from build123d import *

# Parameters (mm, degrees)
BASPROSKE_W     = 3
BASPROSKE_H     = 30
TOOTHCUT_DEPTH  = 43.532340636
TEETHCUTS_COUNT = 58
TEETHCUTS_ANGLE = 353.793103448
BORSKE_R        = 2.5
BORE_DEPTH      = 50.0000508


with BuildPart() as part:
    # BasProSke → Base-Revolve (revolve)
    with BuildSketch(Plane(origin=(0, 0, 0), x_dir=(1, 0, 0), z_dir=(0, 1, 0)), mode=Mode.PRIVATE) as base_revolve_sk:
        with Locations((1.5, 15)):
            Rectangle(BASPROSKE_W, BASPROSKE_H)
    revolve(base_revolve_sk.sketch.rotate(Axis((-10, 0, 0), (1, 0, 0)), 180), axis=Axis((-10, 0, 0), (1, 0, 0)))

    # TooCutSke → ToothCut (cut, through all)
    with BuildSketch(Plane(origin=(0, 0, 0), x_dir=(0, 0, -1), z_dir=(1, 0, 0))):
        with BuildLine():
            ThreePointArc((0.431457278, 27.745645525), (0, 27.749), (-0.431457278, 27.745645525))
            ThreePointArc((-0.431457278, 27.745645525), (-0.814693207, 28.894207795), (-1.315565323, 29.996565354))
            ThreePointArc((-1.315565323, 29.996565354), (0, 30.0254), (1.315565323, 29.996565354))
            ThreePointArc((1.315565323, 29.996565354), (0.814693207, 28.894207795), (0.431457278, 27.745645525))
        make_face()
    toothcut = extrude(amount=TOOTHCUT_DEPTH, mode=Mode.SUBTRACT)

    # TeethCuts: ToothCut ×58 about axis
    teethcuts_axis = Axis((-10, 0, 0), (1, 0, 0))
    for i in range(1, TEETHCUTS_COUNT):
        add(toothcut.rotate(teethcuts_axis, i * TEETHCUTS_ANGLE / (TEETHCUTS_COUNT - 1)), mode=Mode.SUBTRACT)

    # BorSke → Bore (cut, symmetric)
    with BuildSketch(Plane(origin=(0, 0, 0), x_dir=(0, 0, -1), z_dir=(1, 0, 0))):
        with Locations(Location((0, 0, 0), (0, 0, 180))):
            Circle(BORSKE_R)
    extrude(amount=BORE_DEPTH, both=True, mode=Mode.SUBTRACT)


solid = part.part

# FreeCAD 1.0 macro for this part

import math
import FreeCAD as App
import Part
import Sketcher
from FreeCAD import Vector
Q = App.Units.Quantity


def add_polygon(sketch, points):
    """Adds a closed chain of lines whose ends are joined by coincident constraints."""
    first, n = sketch.GeometryCount, len(points)
    for a, b in zip(points, points[1:] + points[:1]):
        sketch.addGeometry(Part.LineSegment(App.Vector(*a, 0), App.Vector(*b, 0)), False)
    for i in range(n):
        sketch.addConstraint(Sketcher.Constraint("Coincident", first + i, 2, first + (i + 1) % n, 1))

doc = App.newDocument("Part")
body = doc.addObject("PartDesign::Body", "Body")

# Sketch on XZ plane
sketch1 = doc.addObject("Sketcher::SketchObject", "Sketch")
body.addObject(sketch1)
sketch1.AttachmentSupport = (doc.XZ_Plane, [""])
sketch1.MapMode = "FlatFace"
add_polygon(sketch1, [(0, -30), (0, 0), (3, 0), (3, -30)])  # lines 0-3
sketch1.addConstraint(Sketcher.Constraint("Vertical", 0))
sketch1.addConstraint(Sketcher.Constraint("Horizontal", 1))
sketch1.addConstraint(Sketcher.Constraint("Vertical", 2))
sketch1.addConstraint(Sketcher.Constraint("Horizontal", 3))
sketch1.addConstraint(Sketcher.Constraint("Coincident", 0, 2, -1, 1))
sketch1.addConstraint(Sketcher.Constraint("DistanceX", 1, 1, 1, 2, Q("3 mm")))
sketch1.addConstraint(Sketcher.Constraint("DistanceY", 0, 1, 0, 2, Q("30 mm")))
revolution = doc.addObject("PartDesign::Revolution", "Revolution")
body.addObject(revolution)
revolution.Profile = sketch1
revolution.ReferenceAxis = (sketch1, ["H_Axis"])
revolution.Angle = 360

# Sketch on YZ plane
sketch2 = doc.addObject("Sketcher::SketchObject", "Sketch001")
body.addObject(sketch2)
sketch2.AttachmentSupport = (doc.YZ_Plane, [""])
sketch2.MapMode = "FlatFace"
sketch2.addGeometry(Part.ArcOfCircle(Part.Circle(Vector(0, 0, 0), Vector(0, 0, 1), 27.7), math.radians(-0.89), math.radians(0.89)), False)
sketch2.addGeometry(Part.ArcOfCircle(Part.Circle(Vector(24.7, -11.6, 0), Vector(0, 0, 1), 11.6), math.radians(62.57), math.radians(74.54)), False)
sketch2.addGeometry(Part.ArcOfCircle(Part.Circle(Vector(0, 0, 0), Vector(0, 0, 1), 30), math.radians(-2.51), math.radians(2.51)), False)
sketch2.addGeometry(Part.ArcOfCircle(Part.Circle(Vector(24.7, 11.6, 0), Vector(0, 0, 1), 11.6), math.radians(-74.54), math.radians(-62.57)), False)
sketch2.addConstraint(Sketcher.Constraint("Coincident", 0, 1, 1, 2))
sketch2.addConstraint(Sketcher.Constraint("Coincident", 1, 1, 2, 1))
sketch2.addConstraint(Sketcher.Constraint("Coincident", 2, 2, 3, 2))
sketch2.addConstraint(Sketcher.Constraint("Coincident", 3, 1, 0, 2))
sketch2.addConstraint(Sketcher.Constraint("Coincident", 0, 3, -1, 1))
sketch2.addConstraint(Sketcher.Constraint("Coincident", 2, 3, -1, 1))
sketch2.addConstraint(Sketcher.Constraint("Equal", 1, 3))
sketch2.addConstraint(Sketcher.Constraint("Symmetric", 1, 3, 3, 3, -1))
sketch2.addConstraint(Sketcher.Constraint("Radius", 1, Q("11.6 mm")))
sketch2.addConstraint(Sketcher.Constraint("Radius", 2, Q("30.0254 mm")))
sketch2.addConstraint(Sketcher.Constraint("Radius", 0, Q("27.748997 mm")))
sketch2.addConstraint(Sketcher.Constraint("DistanceX", 1, 3, 0, 1, Q("3.092249 mm")))
sketch2.addConstraint(Sketcher.Constraint("DistanceY", 1, 1, 2, 2, Q("2.631131 mm")))
pocket1 = doc.addObject("PartDesign::Pocket", "Pocket")
body.addObject(pocket1)
pocket1.Profile = sketch2
pocket1.Type = "ThroughAll"
pocket1.Reversed = True
doc.recompute()

polarpattern = doc.addObject("PartDesign::PolarPattern", "PolarPattern")
body.addObject(polarpattern)
polarpattern.Originals = [pocket1]
polarpattern.Axis = (doc.X_Axis, [""])
polarpattern.Angle = 360
polarpattern.Occurrences = 58
body.Tip = polarpattern

# Sketch on YZ plane
sketch3 = doc.addObject("Sketcher::SketchObject", "Sketch002")
body.addObject(sketch3)
sketch3.AttachmentSupport = (doc.YZ_Plane, [""])
sketch3.MapMode = "FlatFace"
sketch3.addGeometry(Part.Circle(Vector(0, 0, 0), Vector(0, 0, 1), 2.5), False)
sketch3.addConstraint(Sketcher.Constraint("Coincident", 0, 3, -1, 1))
sketch3.addConstraint(Sketcher.Constraint("Diameter", 0, Q("5 mm")))
pocket2 = doc.addObject("PartDesign::Pocket", "Pocket001")
body.addObject(pocket2)
pocket2.Profile = sketch3
pocket2.Length = 100.000102
pocket2.Midplane = True

doc.recompute()
